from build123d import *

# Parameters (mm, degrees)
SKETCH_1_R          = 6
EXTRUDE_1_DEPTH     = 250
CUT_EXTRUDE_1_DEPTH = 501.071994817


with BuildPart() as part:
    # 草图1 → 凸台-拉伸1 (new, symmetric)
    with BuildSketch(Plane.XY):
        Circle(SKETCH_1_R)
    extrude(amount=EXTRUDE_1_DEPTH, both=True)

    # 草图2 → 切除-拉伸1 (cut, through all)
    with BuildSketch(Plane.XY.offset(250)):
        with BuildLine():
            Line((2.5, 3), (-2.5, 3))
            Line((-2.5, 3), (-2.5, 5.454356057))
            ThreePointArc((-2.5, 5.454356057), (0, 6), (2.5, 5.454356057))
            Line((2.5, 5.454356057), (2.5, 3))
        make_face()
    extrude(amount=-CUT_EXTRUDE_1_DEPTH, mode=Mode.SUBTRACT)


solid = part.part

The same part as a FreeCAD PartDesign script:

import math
import FreeCAD as App
import Part
import Sketcher

doc = App.newDocument("Part")
body = doc.addObject("PartDesign::Body", "Body")

# Sketch on XY plane
sketch1 = body.newObject("Sketcher::SketchObject", "Sketch")
sketch1.AttachmentSupport = (doc.getObject("XY_Plane"), [""])
sketch1.MapMode = "FlatFace"
sketch1.addGeometry(Part.Circle(App.Vector(0, 0, 0), App.Vector(0, 0, 1), 6), False)
sketch1.addConstraint(Sketcher.Constraint("Coincident", 0, 3, -1, 1))
sketch1.addConstraint(Sketcher.Constraint("Diameter", 0, 12.0))
pad1 = body.newObject("PartDesign::Pad", "Pad")
pad1.Profile = sketch1
pad1.Length = 500
pad1.Midplane = True

# Sketch on XY plane
sketch2 = body.newObject("Sketcher::SketchObject", "Sketch001")
sketch2.AttachmentSupport = (doc.getObject("XY_Plane"), [""])
sketch2.MapMode = "FlatFace"
sketch2.AttachmentOffset = App.Placement(App.Vector(0, 0, 250), App.Rotation())
sketch2.addGeometry(Part.LineSegment(App.Vector(-2.5, 3, 0), App.Vector(2.5, 3, 0)), False)
sketch2.addGeometry(Part.LineSegment(App.Vector(2.5, 3, 0), App.Vector(2.5, 5.454356, 0)), False)
sketch2.addGeometry(Part.ArcOfCircle(Part.Circle(App.Vector(0, 0, 0), App.Vector(0, 0, 1), 6), math.radians(65.375682), math.radians(114.624318)), False)
sketch2.addGeometry(Part.LineSegment(App.Vector(-2.5, 5.454356, 0), App.Vector(-2.5, 3, 0)), False)
sketch2.addConstraint(Sketcher.Constraint("Coincident", 0, 2, 1, 1))
sketch2.addConstraint(Sketcher.Constraint("Coincident", 1, 2, 2, 1))
sketch2.addConstraint(Sketcher.Constraint("Coincident", 2, 2, 3, 1))
sketch2.addConstraint(Sketcher.Constraint("Coincident", 3, 2, 0, 1))
sketch2.addConstraint(Sketcher.Constraint("Horizontal", 0))
sketch2.addConstraint(Sketcher.Constraint("Vertical", 1))
sketch2.addConstraint(Sketcher.Constraint("Vertical", 3))
sketch2.addConstraint(Sketcher.Constraint("Coincident", 2, 3, -1, 1))
sketch2.addConstraint(Sketcher.Constraint("Horizontal", 1, 2, 2, 2))
sketch2.addConstraint(Sketcher.Constraint("Radius", 2, 6.0))
sketch2.addConstraint(Sketcher.Constraint("DistanceX", 0, 1, 0, 2, 5.0))
sketch2.addConstraint(Sketcher.Constraint("DistanceY", -1, 1, 0, 2, 3.0))
pocket1 = body.newObject("PartDesign::Pocket", "Pocket")
pocket1.Profile = sketch2
pocket1.Type = "ThroughAll"

doc.recompute()
